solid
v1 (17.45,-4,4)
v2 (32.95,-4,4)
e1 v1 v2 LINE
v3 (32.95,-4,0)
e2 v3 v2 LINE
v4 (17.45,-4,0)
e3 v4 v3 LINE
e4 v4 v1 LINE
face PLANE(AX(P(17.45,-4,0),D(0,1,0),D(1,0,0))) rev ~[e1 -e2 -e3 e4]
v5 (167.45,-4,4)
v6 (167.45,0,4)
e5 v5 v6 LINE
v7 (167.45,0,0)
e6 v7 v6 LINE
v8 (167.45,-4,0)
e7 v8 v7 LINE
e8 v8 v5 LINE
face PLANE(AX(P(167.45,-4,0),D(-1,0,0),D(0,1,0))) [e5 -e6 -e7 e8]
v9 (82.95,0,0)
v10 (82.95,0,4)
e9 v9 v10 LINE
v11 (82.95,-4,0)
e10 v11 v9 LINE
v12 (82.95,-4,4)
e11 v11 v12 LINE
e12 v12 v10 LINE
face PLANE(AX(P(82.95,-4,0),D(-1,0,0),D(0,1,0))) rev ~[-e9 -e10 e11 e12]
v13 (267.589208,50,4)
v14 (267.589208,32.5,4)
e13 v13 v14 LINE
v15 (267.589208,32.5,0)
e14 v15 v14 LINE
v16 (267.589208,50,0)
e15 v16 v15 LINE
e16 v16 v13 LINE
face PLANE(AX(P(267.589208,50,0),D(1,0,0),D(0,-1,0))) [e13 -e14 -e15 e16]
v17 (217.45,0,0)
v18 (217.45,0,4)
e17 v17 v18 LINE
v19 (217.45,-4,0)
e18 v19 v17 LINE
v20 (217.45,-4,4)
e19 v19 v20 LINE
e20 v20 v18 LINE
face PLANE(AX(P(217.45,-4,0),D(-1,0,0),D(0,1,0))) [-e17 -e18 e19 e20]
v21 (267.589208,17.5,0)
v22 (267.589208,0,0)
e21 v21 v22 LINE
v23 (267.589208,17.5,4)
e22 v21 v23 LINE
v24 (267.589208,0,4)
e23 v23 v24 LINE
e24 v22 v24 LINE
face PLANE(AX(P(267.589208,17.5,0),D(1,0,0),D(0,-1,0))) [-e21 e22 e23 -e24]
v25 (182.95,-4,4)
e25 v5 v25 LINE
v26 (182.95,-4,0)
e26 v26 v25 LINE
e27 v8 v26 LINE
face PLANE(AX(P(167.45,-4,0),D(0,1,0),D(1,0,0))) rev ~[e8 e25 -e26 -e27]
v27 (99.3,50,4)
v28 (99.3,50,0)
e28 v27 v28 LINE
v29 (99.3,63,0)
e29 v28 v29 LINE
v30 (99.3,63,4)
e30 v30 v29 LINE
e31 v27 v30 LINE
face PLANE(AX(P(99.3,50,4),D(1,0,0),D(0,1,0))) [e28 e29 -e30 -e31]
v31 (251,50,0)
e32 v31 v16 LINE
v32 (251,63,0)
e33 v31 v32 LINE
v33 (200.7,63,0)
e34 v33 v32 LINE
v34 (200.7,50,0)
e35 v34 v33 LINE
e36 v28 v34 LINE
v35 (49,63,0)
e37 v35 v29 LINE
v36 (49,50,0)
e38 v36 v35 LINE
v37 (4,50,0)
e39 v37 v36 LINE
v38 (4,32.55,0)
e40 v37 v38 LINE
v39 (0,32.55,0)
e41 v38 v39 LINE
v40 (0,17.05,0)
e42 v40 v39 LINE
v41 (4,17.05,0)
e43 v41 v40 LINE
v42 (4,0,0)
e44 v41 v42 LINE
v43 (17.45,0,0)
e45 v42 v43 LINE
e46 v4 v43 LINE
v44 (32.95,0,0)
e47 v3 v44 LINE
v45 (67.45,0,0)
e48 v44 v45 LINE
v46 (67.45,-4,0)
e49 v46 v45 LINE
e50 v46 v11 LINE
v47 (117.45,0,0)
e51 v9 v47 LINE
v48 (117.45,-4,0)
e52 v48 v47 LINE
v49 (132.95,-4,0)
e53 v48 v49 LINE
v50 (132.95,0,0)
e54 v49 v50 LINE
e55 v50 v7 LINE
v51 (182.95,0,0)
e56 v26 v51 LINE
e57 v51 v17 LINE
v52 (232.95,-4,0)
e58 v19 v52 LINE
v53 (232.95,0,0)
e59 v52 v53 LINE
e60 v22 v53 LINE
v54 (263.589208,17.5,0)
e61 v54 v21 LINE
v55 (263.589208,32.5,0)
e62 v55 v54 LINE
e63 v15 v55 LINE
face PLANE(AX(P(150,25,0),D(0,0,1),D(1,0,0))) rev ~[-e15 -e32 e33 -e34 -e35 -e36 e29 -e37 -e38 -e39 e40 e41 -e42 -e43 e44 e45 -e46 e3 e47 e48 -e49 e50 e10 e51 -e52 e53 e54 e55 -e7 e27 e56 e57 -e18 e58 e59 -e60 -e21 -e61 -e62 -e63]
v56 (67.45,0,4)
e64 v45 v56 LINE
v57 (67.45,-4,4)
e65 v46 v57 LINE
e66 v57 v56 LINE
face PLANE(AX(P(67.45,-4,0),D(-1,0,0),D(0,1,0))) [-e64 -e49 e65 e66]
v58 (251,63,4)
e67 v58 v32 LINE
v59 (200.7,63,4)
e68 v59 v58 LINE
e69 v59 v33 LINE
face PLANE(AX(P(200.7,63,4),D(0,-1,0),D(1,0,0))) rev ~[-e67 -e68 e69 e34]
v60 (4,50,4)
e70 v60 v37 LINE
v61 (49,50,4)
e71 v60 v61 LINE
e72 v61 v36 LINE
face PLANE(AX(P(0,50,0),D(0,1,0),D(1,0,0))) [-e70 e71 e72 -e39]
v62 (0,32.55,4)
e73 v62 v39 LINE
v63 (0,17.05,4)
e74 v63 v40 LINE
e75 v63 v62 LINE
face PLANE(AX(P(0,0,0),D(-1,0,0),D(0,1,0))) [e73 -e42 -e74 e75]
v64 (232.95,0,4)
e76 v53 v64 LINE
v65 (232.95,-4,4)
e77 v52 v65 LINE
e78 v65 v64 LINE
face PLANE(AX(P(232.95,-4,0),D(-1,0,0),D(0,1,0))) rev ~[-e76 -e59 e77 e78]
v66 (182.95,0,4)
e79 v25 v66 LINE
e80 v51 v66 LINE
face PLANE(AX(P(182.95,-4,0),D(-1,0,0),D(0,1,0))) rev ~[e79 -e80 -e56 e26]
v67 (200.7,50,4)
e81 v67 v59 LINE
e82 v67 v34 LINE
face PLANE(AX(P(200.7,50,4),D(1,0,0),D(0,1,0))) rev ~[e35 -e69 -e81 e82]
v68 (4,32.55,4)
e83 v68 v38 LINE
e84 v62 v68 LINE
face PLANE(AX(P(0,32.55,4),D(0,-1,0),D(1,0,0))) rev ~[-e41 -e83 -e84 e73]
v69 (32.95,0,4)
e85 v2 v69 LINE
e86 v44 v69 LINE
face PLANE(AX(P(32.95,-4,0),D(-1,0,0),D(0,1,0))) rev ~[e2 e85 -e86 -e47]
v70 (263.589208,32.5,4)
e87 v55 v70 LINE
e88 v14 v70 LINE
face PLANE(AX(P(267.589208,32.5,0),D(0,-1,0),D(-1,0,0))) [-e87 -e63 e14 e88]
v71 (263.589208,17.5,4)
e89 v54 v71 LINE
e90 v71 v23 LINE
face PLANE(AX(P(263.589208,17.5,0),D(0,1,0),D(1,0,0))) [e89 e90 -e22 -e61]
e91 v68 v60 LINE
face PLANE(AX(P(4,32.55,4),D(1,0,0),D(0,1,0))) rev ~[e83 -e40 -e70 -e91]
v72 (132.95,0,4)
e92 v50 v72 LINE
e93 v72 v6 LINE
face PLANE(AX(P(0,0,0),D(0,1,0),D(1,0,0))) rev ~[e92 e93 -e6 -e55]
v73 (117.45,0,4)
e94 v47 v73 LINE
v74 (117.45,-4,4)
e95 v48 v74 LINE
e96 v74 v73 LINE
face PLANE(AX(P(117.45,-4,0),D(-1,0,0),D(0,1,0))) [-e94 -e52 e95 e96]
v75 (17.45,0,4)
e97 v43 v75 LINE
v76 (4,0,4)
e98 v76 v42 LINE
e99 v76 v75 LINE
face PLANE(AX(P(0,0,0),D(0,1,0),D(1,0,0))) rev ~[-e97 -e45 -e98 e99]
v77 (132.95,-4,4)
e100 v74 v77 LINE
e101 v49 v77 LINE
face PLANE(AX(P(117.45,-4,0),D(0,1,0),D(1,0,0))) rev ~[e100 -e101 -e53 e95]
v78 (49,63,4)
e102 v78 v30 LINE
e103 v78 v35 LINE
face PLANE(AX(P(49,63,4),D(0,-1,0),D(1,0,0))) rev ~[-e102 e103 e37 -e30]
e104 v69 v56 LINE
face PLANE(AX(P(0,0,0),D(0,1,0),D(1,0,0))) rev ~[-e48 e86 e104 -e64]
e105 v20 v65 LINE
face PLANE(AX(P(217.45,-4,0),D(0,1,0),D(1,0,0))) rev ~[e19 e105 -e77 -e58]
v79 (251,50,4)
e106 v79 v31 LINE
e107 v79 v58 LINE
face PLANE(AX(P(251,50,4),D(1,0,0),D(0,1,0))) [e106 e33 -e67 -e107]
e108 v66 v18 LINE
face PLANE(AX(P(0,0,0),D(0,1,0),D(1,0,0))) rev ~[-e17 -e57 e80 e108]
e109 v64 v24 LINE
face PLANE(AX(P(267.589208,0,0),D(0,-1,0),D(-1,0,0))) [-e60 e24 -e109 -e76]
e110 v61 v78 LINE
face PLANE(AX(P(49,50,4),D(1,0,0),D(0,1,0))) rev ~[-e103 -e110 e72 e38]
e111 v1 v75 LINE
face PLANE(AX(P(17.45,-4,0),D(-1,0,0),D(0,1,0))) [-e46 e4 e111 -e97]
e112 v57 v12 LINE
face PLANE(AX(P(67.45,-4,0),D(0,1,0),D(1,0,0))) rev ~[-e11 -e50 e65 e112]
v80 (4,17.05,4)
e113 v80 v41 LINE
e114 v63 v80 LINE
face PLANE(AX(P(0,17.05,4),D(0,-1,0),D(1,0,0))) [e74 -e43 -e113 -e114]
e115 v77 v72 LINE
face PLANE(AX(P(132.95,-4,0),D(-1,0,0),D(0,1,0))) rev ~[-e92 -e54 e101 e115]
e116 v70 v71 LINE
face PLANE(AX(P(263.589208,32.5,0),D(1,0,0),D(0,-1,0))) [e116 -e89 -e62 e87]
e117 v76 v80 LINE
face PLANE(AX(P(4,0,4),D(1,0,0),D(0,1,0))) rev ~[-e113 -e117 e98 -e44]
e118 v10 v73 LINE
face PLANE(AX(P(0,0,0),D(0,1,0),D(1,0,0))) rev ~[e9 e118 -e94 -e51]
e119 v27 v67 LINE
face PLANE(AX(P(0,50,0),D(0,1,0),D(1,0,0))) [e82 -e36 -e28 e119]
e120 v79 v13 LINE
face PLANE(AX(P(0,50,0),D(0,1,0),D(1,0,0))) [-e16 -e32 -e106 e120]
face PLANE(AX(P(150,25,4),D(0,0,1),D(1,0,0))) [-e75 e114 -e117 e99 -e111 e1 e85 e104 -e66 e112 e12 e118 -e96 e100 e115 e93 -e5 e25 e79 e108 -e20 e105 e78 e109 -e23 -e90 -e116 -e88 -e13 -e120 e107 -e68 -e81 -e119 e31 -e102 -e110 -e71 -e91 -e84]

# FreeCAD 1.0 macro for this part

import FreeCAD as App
import Part
import Sketcher
from FreeCAD import Vector
Q = App.Units.Quantity

doc = App.newDocument("Part")
body = doc.addObject("PartDesign::Body", "Body")

# Sketch on XY plane
sketch1 = doc.addObject("Sketcher::SketchObject", "Sketch")
body.addObject(sketch1)
sketch1.AttachmentSupport = (doc.XY_Plane, [""])
sketch1.MapMode = "FlatFace"
sketch1.addGeometry([
    Part.LineSegment(Vector(0, 50, 0), Vector(0, 0, 0)),
    Part.LineSegment(Vector(0, 0, 0), Vector(300, 0, 0)),
    Part.LineSegment(Vector(300, 0, 0), Vector(300, 50, 0)),
    Part.LineSegment(Vector(300, 50, 0), Vector(0, 50, 0)),
], False)
sketch1.addConstraint([
    Sketcher.Constraint("Coincident", 0, 2, 1, 1),
    Sketcher.Constraint("Coincident", 1, 2, 2, 1),
    Sketcher.Constraint("Coincident", 2, 2, 3, 1),
    Sketcher.Constraint("Coincident", 3, 2, 0, 1),
    Sketcher.Constraint("Vertical", 0),
    Sketcher.Constraint("Horizontal", 1),
    Sketcher.Constraint("Vertical", 2),
    Sketcher.Constraint("Horizontal", 3),
    Sketcher.Constraint("Coincident", 0, 2, -1, 1),
    Sketcher.Constraint("DistanceX", 1, 1, 1, 2, Q("300 mm")),
    Sketcher.Constraint("DistanceY", 0, 2, 0, 1, Q("50 mm")),
])
pad1 = doc.addObject("PartDesign::Pad", "Pad")
body.addObject(pad1)
pad1.Profile = sketch1
pad1.Length = 4

# Sketch on XY plane
sketch2 = doc.addObject("Sketcher::SketchObject", "Sketch001")
body.addObject(sketch2)
sketch2.AttachmentSupport = (doc.XY_Plane, [""])
sketch2.MapMode = "FlatFace"
sketch2.addGeometry([
    Part.LineSegment(Vector(17.45, 0, 0), Vector(17.45, -4, 0)),  # 0
    Part.LineSegment(Vector(17.45, -4, 0), Vector(32.95, -4, 0)),  # 1
    Part.LineSegment(Vector(32.95, -4, 0), Vector(32.95, 0, 0)),  # 2
    Part.LineSegment(Vector(32.95, 0, 0), Vector(17.45, 0, 0)),  # 3
    Part.LineSegment(Vector(67.45, 0, 0), Vector(67.45, -4, 0)),  # 4
    Part.LineSegment(Vector(67.45, -4, 0), Vector(82.95, -4, 0)),  # 5
    Part.LineSegment(Vector(82.95, -4, 0), Vector(82.95, 0, 0)),  # 6
    Part.LineSegment(Vector(82.95, 0, 0), Vector(67.45, 0, 0)),  # 7
    Part.LineSegment(Vector(117.45, 0, 0), Vector(117.45, -4, 0)),  # 8
    Part.LineSegment(Vector(117.45, -4, 0), Vector(132.95, -4, 0)),  # 9
    Part.LineSegment(Vector(132.95, -4, 0), Vector(132.95, 0, 0)),  # 10
    Part.LineSegment(Vector(132.95, 0, 0), Vector(117.45, 0, 0)),  # 11
    Part.LineSegment(Vector(167.45, 0, 0), Vector(167.45, -4, 0)),  # 12
    Part.LineSegment(Vector(167.45, -4, 0), Vector(182.95, -4, 0)),  # 13
    Part.LineSegment(Vector(182.95, -4, 0), Vector(182.95, 0, 0)),  # 14
    Part.LineSegment(Vector(182.95, 0, 0), Vector(167.45, 0, 0)),  # 15
    Part.LineSegment(Vector(217.45, 0, 0), Vector(217.45, -4, 0)),  # 16
    Part.LineSegment(Vector(217.45, -4, 0), Vector(232.95, -4, 0)),  # 17
    Part.LineSegment(Vector(232.95, -4, 0), Vector(232.95, 0, 0)),  # 18
    Part.LineSegment(Vector(232.95, 0, 0), Vector(217.45, 0, 0)),  # 19
    Part.LineSegment(Vector(267.45, 0, 0), Vector(267.45, -4, 0)),  # 20
    Part.LineSegment(Vector(267.45, -4, 0), Vector(282.95, -4, 0)),  # 21
    Part.LineSegment(Vector(282.95, -4, 0), Vector(282.95, 0, 0)),  # 22
    Part.LineSegment(Vector(282.95, 0, 0), Vector(267.45, 0, 0)),  # 23
], False)
sketch2.addConstraint([
    Sketcher.Constraint("Coincident", 0, 2, 1, 1),
    Sketcher.Constraint("Coincident", 1, 2, 2, 1),
    Sketcher.Constraint("Coincident", 2, 2, 3, 1),
    Sketcher.Constraint("Coincident", 3, 2, 0, 1),
    Sketcher.Constraint("Coincident", 4, 2, 5, 1),
    Sketcher.Constraint("Coincident", 5, 2, 6, 1),
    Sketcher.Constraint("Coincident", 6, 2, 7, 1),
    Sketcher.Constraint("Coincident", 7, 2, 4, 1),
    Sketcher.Constraint("Coincident", 8, 2, 9, 1),
    Sketcher.Constraint("Coincident", 9, 2, 10, 1),
    Sketcher.Constraint("Coincident", 10, 2, 11, 1),
    Sketcher.Constraint("Coincident", 11, 2, 8, 1),
    Sketcher.Constraint("Coincident", 12, 2, 13, 1),
    Sketcher.Constraint("Coincident", 13, 2, 14, 1),
    Sketcher.Constraint("Coincident", 14, 2, 15, 1),
    Sketcher.Constraint("Coincident", 15, 2, 12, 1),
    Sketcher.Constraint("Coincident", 16, 2, 17, 1),
    Sketcher.Constraint("Coincident", 17, 2, 18, 1),
    Sketcher.Constraint("Coincident", 18, 2, 19, 1),
    Sketcher.Constraint("Coincident", 19, 2, 16, 1),
    Sketcher.Constraint("Coincident", 20, 2, 21, 1),
    Sketcher.Constraint("Coincident", 21, 2, 22, 1),
    Sketcher.Constraint("Coincident", 22, 2, 23, 1),
    Sketcher.Constraint("Coincident", 23, 2, 20, 1),
    Sketcher.Constraint("Vertical", 0),
    Sketcher.Constraint("Horizontal", 1),
    Sketcher.Constraint("Vertical", 2),
    Sketcher.Constraint("Horizontal", 3),
    Sketcher.Constraint("Vertical", 4),
    Sketcher.Constraint("Horizontal", 5),
    Sketcher.Constraint("Vertical", 6),
    Sketcher.Constraint("Horizontal", 7),
    Sketcher.Constraint("Vertical", 8),
    Sketcher.Constraint("Horizontal", 9),
    Sketcher.Constraint("Vertical", 10),
    Sketcher.Constraint("Horizontal", 11),
    Sketcher.Constraint("Vertical", 12),
    Sketcher.Constraint("Horizontal", 13),
    Sketcher.Constraint("Vertical", 14),
    Sketcher.Constraint("Horizontal", 15),
    Sketcher.Constraint("Vertical", 16),
    Sketcher.Constraint("Horizontal", 17),
    Sketcher.Constraint("Vertical", 18),
    Sketcher.Constraint("Horizontal", 19),
    Sketcher.Constraint("Vertical", 20),
    Sketcher.Constraint("Horizontal", 21),
    Sketcher.Constraint("Vertical", 22),
    Sketcher.Constraint("Horizontal", 23),
    Sketcher.Constraint("PointOnObject", 2, 2, -1),
    Sketcher.Constraint("PointOnObject", 6, 2, -1),
    Sketcher.Constraint("PointOnObject", 10, 2, -1),
    Sketcher.Constraint("PointOnObject", 14, 2, -1),
    Sketcher.Constraint("PointOnObject", 18, 2, -1),
    Sketcher.Constraint("PointOnObject", 22, 2, -1),
    Sketcher.Constraint("Horizontal", 1, 2, 4, 2),
    Sketcher.Constraint("Horizontal", 5, 2, 8, 2),
    Sketcher.Constraint("Horizontal", 9, 2, 12, 2),
    Sketcher.Constraint("Horizontal", 13, 2, 16, 2),
    Sketcher.Constraint("Horizontal", 17, 2, 20, 2),
    Sketcher.Constraint("Equal", 3, 5),
    Sketcher.Constraint("Equal", 7, 9),
    Sketcher.Constraint("Equal", 11, 13),
    Sketcher.Constraint("Equal", 15, 17),
    Sketcher.Constraint("Equal", 19, 21),
    Sketcher.Constraint("DistanceY", 0, 2, 0, 1, Q("4 mm")),
    Sketcher.Constraint("DistanceX", 1, 1, 1, 2, Q("15.5 mm")),
    Sketcher.Constraint("DistanceX", 0, 2, 4, 2, Q("50 mm")),
    Sketcher.Constraint("DistanceX", 4, 2, 8, 2, Q("50 mm")),
    Sketcher.Constraint("DistanceX", 8, 2, 12, 2, Q("50 mm")),
    Sketcher.Constraint("DistanceX", 12, 2, 16, 2, Q("50 mm")),
    Sketcher.Constraint("DistanceX", 16, 2, 20, 2, Q("50 mm")),
    Sketcher.Constraint("DistanceX", -1, 1, 0, 2, Q("17.45 mm")),
])
pad2 = doc.addObject("PartDesign::Pad", "Pad001")
body.addObject(pad2)
pad2.Profile = sketch2
pad2.Length = 4

# Sketch on XY plane
sketch3 = doc.addObject("Sketcher::SketchObject", "Sketch002")
body.addObject(sketch3)
sketch3.AttachmentSupport = (doc.XY_Plane, [""])
sketch3.MapMode = "FlatFace"
sketch3.AttachmentOffset = App.Placement(Vector(0, 0, 4), App.Rotation())
sketch3.addGeometry([
    Part.LineSegment(Vector(0, 50, 0), Vector(0, 32.55, 0)),
    Part.LineSegment(Vector(0, 32.55, 0), Vector(4, 32.55, 0)),
    Part.LineSegment(Vector(4, 32.55, 0), Vector(4, 50, 0)),
    Part.LineSegment(Vector(4, 50, 0), Vector(0, 50, 0)),
], False)
sketch3.addConstraint([
    Sketcher.Constraint("Coincident", 0, 2, 1, 1),
    Sketcher.Constraint("Coincident", 1, 2, 2, 1),
    Sketcher.Constraint("Coincident", 2, 2, 3, 1),
    Sketcher.Constraint("Coincident", 3, 2, 0, 1),
    Sketcher.Constraint("Vertical", 0),
    Sketcher.Constraint("Horizontal", 1),
    Sketcher.Constraint("Vertical", 2),
    Sketcher.Constraint("Horizontal", 3),
    Sketcher.Constraint("PointOnObject", 0, 2, -2),
    Sketcher.Constraint("DistanceX", 1, 1, 1, 2, Q("4 mm")),
    Sketcher.Constraint("DistanceY", -1, 1, 2, 2, Q("50 mm")),
    Sketcher.Constraint("DistanceY", 0, 2, 0, 1, Q("17.45 mm")),
])
pocket1 = doc.addObject("PartDesign::Pocket", "Pocket")
body.addObject(pocket1)
pocket1.Profile = sketch3
pocket1.Type = "UpToFirst"

# Sketch on XY plane
sketch4 = doc.addObject("Sketcher::SketchObject", "Sketch003")
body.addObject(sketch4)
sketch4.AttachmentSupport = (doc.XY_Plane, [""])
sketch4.MapMode = "FlatFace"
sketch4.AttachmentOffset = App.Placement(Vector(0, 0, 4), App.Rotation())
sketch4.addGeometry([
    Part.LineSegment(Vector(0, 17.05, 0), Vector(0, 0, 0)),
    Part.LineSegment(Vector(0, 0, 0), Vector(4, 0, 0)),
    Part.LineSegment(Vector(4, 0, 0), Vector(4, 17.05, 0)),
    Part.LineSegment(Vector(4, 17.05, 0), Vector(0, 17.05, 0)),
], False)
sketch4.addConstraint([
    Sketcher.Constraint("Coincident", 0, 2, 1, 1),
    Sketcher.Constraint("Coincident", 1, 2, 2, 1),
    Sketcher.Constraint("Coincident", 2, 2, 3, 1),
    Sketcher.Constraint("Coincident", 3, 2, 0, 1),
    Sketcher.Constraint("Vertical", 0),
    Sketcher.Constraint("Horizontal", 1),
    Sketcher.Constraint("Vertical", 2),
    Sketcher.Constraint("Horizontal", 3),
    Sketcher.Constraint("Coincident", 0, 2, -1, 1),
    Sketcher.Constraint("DistanceX", 1, 1, 1, 2, Q("4 mm")),
    Sketcher.Constraint("DistanceY", 0, 2, 0, 1, Q("17.05 mm")),
])
pocket2 = doc.addObject("PartDesign::Pocket", "Pocket001")
body.addObject(pocket2)
pocket2.Profile = sketch4
pocket2.Type = "UpToFirst"

# Sketch on XY plane
sketch5 = doc.addObject("Sketcher::SketchObject", "Sketch004")
body.addObject(sketch5)
sketch5.AttachmentSupport = (doc.XY_Plane, [""])
sketch5.MapMode = "FlatFace"
sketch5.AttachmentOffset = App.Placement(Vector(0, 0, 4), App.Rotation())
sketch5.addGeometry([
    Part.LineSegment(Vector(296, 17.05, 0), Vector(296, 0, 0)),
    Part.LineSegment(Vector(296, 0, 0), Vector(300, 0, 0)),
    Part.LineSegment(Vector(300, 0, 0), Vector(300, 17.05, 0)),
    Part.LineSegment(Vector(300, 17.05, 0), Vector(296, 17.05, 0)),
], False)
sketch5.addConstraint([
    Sketcher.Constraint("Coincident", 0, 2, 1, 1),
    Sketcher.Constraint("Coincident", 1, 2, 2, 1),
    Sketcher.Constraint("Coincident", 2, 2, 3, 1),
    Sketcher.Constraint("Coincident", 3, 2, 0, 1),
    Sketcher.Constraint("Vertical", 0),
    Sketcher.Constraint("Horizontal", 1),
    Sketcher.Constraint("Vertical", 2),
    Sketcher.Constraint("Horizontal", 3),
    Sketcher.Constraint("PointOnObject", 0, 2, -1),
    Sketcher.Constraint("DistanceX", 1, 1, 1, 2, Q("4 mm")),
    Sketcher.Constraint("DistanceX", -1, 1, 0, 2, Q("296 mm")),
    Sketcher.Constraint("DistanceY", 0, 2, 0, 1, Q("17.05 mm")),
])
pocket3 = doc.addObject("PartDesign::Pocket", "Pocket002")
body.addObject(pocket3)
pocket3.Profile = sketch5
pocket3.Type = "UpToFirst"

# Sketch on XY plane
sketch6 = doc.addObject("Sketcher::SketchObject", "Sketch005")
body.addObject(sketch6)
sketch6.AttachmentSupport = (doc.XY_Plane, [""])
sketch6.MapMode = "FlatFace"
sketch6.AttachmentOffset = App.Placement(Vector(0, 0, 4), App.Rotation())
sketch6.addGeometry([
    Part.LineSegment(Vector(296, 50, 0), Vector(296, 32.55, 0)),
    Part.LineSegment(Vector(296, 32.55, 0), Vector(300, 32.55, 0)),
    Part.LineSegment(Vector(300, 32.55, 0), Vector(300, 50, 0)),
    Part.LineSegment(Vector(300, 50, 0), Vector(296, 50, 0)),
], False)
sketch6.addConstraint([
    Sketcher.Constraint("Coincident", 0, 2, 1, 1),
    Sketcher.Constraint("Coincident", 1, 2, 2, 1),
    Sketcher.Constraint("Coincident", 2, 2, 3, 1),
    Sketcher.Constraint("Coincident", 3, 2, 0, 1),
    Sketcher.Constraint("Vertical", 0),
    Sketcher.Constraint("Horizontal", 1),
    Sketcher.Constraint("Vertical", 2),
    Sketcher.Constraint("Horizontal", 3),
    Sketcher.Constraint("DistanceX", 1, 1, 1, 2, Q("4 mm")),
    Sketcher.Constraint("DistanceX", -1, 1, 0, 2, Q("296 mm")),
    Sketcher.Constraint("DistanceY", -1, 1, 2, 2, Q("50 mm")),
    Sketcher.Constraint("DistanceY", 0, 2, 0, 1, Q("17.45 mm")),
])
pocket4 = doc.addObject("PartDesign::Pocket", "Pocket003")
body.addObject(pocket4)
pocket4.Profile = sketch6
pocket4.Type = "UpToFirst"

# Sketch on XY plane
sketch7 = doc.addObject("Sketcher::SketchObject", "Sketch006")
body.addObject(sketch7)
sketch7.AttachmentSupport = (doc.XY_Plane, [""])
sketch7.MapMode = "FlatFace"
sketch7.AttachmentOffset = App.Placement(Vector(0, 0, 4), App.Rotation())
sketch7.addGeometry([
    Part.LineSegment(Vector(49, 63, 0), Vector(49, 50, 0)),  # 0
    Part.LineSegment(Vector(49, 50, 0), Vector(99.3, 50, 0)),  # 1
    Part.LineSegment(Vector(99.3, 50, 0), Vector(99.3, 63, 0)),  # 2
    Part.LineSegment(Vector(99.3, 63, 0), Vector(49, 63, 0)),  # 3
    Part.LineSegment(Vector(200.7, 63, 0), Vector(200.7, 50, 0)),  # 4
    Part.LineSegment(Vector(200.7, 50, 0), Vector(251, 50, 0)),  # 5
    Part.LineSegment(Vector(251, 50, 0), Vector(251, 63, 0)),  # 6
    Part.LineSegment(Vector(251, 63, 0), Vector(200.7, 63, 0)),  # 7
], False)
sketch7.addConstraint([
    Sketcher.Constraint("Coincident", 0, 2, 1, 1),
    Sketcher.Constraint("Coincident", 1, 2, 2, 1),
    Sketcher.Constraint("Coincident", 2, 2, 3, 1),
    Sketcher.Constraint("Coincident", 3, 2, 0, 1),
    Sketcher.Constraint("Coincident", 4, 2, 5, 1),
    Sketcher.Constraint("Coincident", 5, 2, 6, 1),
    Sketcher.Constraint("Coincident", 6, 2, 7, 1),
    Sketcher.Constraint("Coincident", 7, 2, 4, 1),
    Sketcher.Constraint("Vertical", 0),
    Sketcher.Constraint("Horizontal", 1),
    Sketcher.Constraint("Vertical", 2),
    Sketcher.Constraint("Horizontal", 3),
    Sketcher.Constraint("Vertical", 4),
    Sketcher.Constraint("Horizontal", 5),
    Sketcher.Constraint("Vertical", 6),
    Sketcher.Constraint("Horizontal", 7),
    Sketcher.Constraint("Horizontal", 1, 2, 4, 2),
    Sketcher.Constraint("Horizontal", 3, 2, 6, 2),
    Sketcher.Constraint("Equal", 3, 5),
    Sketcher.Constraint("DistanceY", 0, 2, 0, 1, Q("13 mm")),
    Sketcher.Constraint("DistanceX", 1, 1, 1, 2, Q("50.3 mm")),
    Sketcher.Constraint("DistanceX", -1, 1, 0, 2, Q("49 mm")),
    Sketcher.Constraint("DistanceY", -1, 1, 0, 2, Q("50 mm")),
    Sketcher.Constraint("DistanceX", -1, 1, 5, 2, Q("251 mm")),
])
pad3 = doc.addObject("PartDesign::Pad", "Pad002")
body.addObject(pad3)
pad3.Profile = sketch7
pad3.Length = 4
pad3.Reversed = True

# Sketch on XY plane
sketch8 = doc.addObject("Sketcher::SketchObject", "Sketch007")
body.addObject(sketch8)
sketch8.AttachmentSupport = (doc.XY_Plane, [""])
sketch8.MapMode = "FlatFace"
sketch8.addGeometry([
    Part.LineSegment(Vector(267.589208, 32.5, 0), Vector(267.589208, 50, 0)),  # 0
    Part.LineSegment(Vector(267.589208, 50, 0), Vector(305.11842, 50, 0)),  # 1
    Part.LineSegment(Vector(305.11842, 50, 0), Vector(305.11842, -8.903306, 0)),  # 2
    Part.LineSegment(Vector(305.11842, -8.903306, 0), Vector(260.181086, -8.903306, 0)),  # 3
    Part.LineSegment(Vector(260.181086, -8.903306, 0), Vector(260.181086, 0, 0)),  # 4
    Part.LineSegment(Vector(260.181086, 0, 0), Vector(267.589208, 0, 0)),  # 5
    Part.LineSegment(Vector(267.589208, 0, 0), Vector(267.589208, 17.5, 0)),  # 6
    Part.LineSegment(Vector(267.589208, 17.5, 0), Vector(263.589208, 17.5, 0)),  # 7
    Part.LineSegment(Vector(263.589208, 17.5, 0), Vector(263.589208, 32.5, 0)),  # 8
    Part.LineSegment(Vector(263.589208, 32.5, 0), Vector(267.589208, 32.5, 0)),  # 9
], False)
sketch8.addConstraint([
    Sketcher.Constraint("Coincident", 0, 2, 1, 1),
    Sketcher.Constraint("Coincident", 1, 2, 2, 1),
    Sketcher.Constraint("Coincident", 2, 2, 3, 1),
    Sketcher.Constraint("Coincident", 3, 2, 4, 1),
    Sketcher.Constraint("Coincident", 4, 2, 5, 1),
    Sketcher.Constraint("Coincident", 5, 2, 6, 1),
    Sketcher.Constraint("Coincident", 6, 2, 7, 1),
    Sketcher.Constraint("Coincident", 7, 2, 8, 1),
    Sketcher.Constraint("Coincident", 8, 2, 9, 1),
    Sketcher.Constraint("Coincident", 9, 2, 0, 1),
    Sketcher.Constraint("Vertical", 0),
    Sketcher.Constraint("Horizontal", 1),
    Sketcher.Constraint("Vertical", 2),
    Sketcher.Constraint("Horizontal", 3),
    Sketcher.Constraint("Vertical", 4),
    Sketcher.Constraint("Horizontal", 5),
    Sketcher.Constraint("Vertical", 6),
    Sketcher.Constraint("Horizontal", 7),
    Sketcher.Constraint("Vertical", 8),
    Sketcher.Constraint("Horizontal", 9),
    Sketcher.Constraint("PointOnObject", 4, 2, -1),
    Sketcher.Constraint("Vertical", 0, 2, 5, 2),
    Sketcher.Constraint("Equal", 0, 6),
    Sketcher.Constraint("DistanceX", 7, 2, 7, 1, Q("4 mm")),
    Sketcher.Constraint("DistanceY", 8, 1, 8, 2, Q("15 mm")),
    Sketcher.Constraint("DistanceY", 0, 1, 0, 2, Q("17.5 mm")),
    Sketcher.Constraint("DistanceX", 1, 1, 1, 2, Q("37.529212 mm")),
    Sketcher.Constraint("DistanceX", 5, 1, 5, 2, Q("7.408122 mm")),
    Sketcher.Constraint("DistanceY", 2, 2, 2, 1, Q("58.903306 mm")),
    Sketcher.Constraint("DistanceX", -1, 1, 0, 2, Q("267.589208 mm")),
])
pocket5 = doc.addObject("PartDesign::Pocket", "Pocket004")
body.addObject(pocket5)
pocket5.Profile = sketch8
pocket5.Type = "UpToFirst"
pocket5.Reversed = True

doc.recompute()
